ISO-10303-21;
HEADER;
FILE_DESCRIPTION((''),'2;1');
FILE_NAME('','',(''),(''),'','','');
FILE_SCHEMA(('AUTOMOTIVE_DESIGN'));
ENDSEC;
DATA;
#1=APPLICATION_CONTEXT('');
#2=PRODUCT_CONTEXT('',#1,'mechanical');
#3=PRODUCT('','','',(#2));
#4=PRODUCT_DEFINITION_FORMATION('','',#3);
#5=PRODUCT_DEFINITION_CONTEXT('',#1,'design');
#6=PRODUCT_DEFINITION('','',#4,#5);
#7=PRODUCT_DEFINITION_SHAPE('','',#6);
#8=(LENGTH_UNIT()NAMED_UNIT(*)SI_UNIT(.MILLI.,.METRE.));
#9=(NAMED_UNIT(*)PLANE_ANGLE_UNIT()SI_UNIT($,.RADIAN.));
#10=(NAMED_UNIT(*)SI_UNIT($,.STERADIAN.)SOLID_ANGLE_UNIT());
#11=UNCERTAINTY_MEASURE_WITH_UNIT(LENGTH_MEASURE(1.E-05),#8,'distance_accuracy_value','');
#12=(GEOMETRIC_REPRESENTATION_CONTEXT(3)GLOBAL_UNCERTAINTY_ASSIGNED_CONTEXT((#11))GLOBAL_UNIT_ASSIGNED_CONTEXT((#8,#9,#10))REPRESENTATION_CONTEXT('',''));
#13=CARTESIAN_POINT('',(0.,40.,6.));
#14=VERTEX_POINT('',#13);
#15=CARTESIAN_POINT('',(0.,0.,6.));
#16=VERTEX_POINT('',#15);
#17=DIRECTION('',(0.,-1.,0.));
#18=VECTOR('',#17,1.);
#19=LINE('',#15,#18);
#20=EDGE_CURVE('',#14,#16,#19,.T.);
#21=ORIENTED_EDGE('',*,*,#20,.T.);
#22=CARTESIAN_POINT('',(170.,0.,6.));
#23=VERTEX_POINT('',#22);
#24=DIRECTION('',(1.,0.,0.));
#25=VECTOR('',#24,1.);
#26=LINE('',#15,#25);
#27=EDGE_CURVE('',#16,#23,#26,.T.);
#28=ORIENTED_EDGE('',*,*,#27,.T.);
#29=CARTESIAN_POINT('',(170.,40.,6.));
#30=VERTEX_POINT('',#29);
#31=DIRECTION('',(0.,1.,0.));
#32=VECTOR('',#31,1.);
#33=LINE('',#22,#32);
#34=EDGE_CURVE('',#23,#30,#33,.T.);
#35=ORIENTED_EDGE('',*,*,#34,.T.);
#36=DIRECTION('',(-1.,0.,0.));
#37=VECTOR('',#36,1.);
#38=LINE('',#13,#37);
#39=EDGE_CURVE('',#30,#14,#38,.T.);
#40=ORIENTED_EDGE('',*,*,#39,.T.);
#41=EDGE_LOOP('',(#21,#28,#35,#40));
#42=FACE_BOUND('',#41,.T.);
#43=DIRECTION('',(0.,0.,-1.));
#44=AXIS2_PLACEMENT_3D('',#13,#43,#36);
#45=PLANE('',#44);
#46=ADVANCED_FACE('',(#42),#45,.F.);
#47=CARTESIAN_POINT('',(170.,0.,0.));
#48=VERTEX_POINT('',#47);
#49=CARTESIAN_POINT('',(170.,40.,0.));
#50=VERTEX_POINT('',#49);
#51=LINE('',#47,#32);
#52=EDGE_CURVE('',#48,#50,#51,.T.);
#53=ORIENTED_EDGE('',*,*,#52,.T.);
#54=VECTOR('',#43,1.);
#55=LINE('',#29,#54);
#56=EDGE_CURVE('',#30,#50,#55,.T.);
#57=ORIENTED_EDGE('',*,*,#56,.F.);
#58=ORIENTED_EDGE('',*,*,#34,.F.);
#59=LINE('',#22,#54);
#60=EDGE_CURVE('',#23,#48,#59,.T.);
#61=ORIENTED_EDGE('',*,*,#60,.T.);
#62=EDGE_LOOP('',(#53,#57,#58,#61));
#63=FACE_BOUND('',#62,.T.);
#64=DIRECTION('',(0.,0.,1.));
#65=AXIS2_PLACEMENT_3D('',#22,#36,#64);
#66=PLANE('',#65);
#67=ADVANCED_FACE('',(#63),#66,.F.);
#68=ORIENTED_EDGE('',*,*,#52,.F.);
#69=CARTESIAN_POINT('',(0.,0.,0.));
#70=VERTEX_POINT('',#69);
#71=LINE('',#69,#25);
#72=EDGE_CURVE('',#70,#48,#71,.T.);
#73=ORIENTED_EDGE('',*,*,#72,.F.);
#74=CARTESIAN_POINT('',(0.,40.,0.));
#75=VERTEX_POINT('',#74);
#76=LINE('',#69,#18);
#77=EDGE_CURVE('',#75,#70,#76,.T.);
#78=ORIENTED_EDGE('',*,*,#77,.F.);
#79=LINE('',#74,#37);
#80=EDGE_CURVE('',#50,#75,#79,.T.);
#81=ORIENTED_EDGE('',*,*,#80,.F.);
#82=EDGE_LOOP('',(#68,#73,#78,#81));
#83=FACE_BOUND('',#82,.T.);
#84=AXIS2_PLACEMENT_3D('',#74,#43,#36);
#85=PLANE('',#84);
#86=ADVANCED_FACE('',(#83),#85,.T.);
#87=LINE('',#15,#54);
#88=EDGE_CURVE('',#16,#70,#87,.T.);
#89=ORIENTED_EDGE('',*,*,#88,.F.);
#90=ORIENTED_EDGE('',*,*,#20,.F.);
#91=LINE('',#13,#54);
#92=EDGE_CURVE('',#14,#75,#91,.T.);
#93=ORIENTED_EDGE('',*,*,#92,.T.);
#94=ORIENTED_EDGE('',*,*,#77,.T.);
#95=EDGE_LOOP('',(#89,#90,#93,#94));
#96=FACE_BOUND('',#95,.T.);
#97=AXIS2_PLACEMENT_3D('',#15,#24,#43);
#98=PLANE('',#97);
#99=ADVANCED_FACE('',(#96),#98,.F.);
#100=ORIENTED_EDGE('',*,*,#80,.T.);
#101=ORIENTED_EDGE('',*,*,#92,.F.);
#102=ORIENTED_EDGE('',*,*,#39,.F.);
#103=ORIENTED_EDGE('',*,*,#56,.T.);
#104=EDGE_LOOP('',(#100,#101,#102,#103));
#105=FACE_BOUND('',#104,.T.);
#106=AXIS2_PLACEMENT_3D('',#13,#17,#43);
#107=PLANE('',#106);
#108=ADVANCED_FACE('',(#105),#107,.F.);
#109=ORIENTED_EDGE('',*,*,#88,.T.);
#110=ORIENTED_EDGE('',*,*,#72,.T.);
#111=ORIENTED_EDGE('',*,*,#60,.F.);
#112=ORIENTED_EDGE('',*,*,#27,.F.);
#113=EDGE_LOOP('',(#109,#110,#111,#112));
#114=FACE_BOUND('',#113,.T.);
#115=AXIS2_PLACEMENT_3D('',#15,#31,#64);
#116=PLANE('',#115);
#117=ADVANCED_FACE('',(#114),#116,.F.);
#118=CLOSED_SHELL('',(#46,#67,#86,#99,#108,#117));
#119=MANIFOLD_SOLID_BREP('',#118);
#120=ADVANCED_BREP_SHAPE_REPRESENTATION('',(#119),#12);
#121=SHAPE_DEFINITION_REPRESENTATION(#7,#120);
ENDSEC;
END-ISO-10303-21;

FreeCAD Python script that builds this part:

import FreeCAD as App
import Part
import Sketcher

V = App.Vector
Q = App.Units.Quantity

doc = App.newDocument("Part")
body = doc.addObject("PartDesign::Body", "Body")

# Sketch on XY plane
sketch1 = body.newObject("Sketcher::SketchObject", "Sketch")
sketch1.AttachmentSupport = (doc.getObject("XY_Plane"), [""])
sketch1.MapMode = "FlatFace"
sketch1.addGeometry([
    Part.LineSegment(V(0, 40, 0), V(0, 0, 0)),
    Part.LineSegment(V(0, 0, 0), V(170, 0, 0)),
    Part.LineSegment(V(170, 0, 0), V(170, 40, 0)),
    Part.LineSegment(V(170, 40, 0), V(0, 40, 0)),
], False)
sketch1.addConstraint([
    Sketcher.Constraint("Coincident", 0, 2, 1, 1),
    Sketcher.Constraint("Coincident", 1, 2, 2, 1),
    Sketcher.Constraint("Coincident", 2, 2, 3, 1),
    Sketcher.Constraint("Coincident", 3, 2, 0, 1),
    Sketcher.Constraint("Vertical", 0),
    Sketcher.Constraint("Horizontal", 1),
    Sketcher.Constraint("Vertical", 2),
    Sketcher.Constraint("Horizontal", 3),
    Sketcher.Constraint("Coincident", 0, 2, -1, 1),
    Sketcher.Constraint("DistanceX", 1, 1, 1, 2, Q("170 mm")),
    Sketcher.Constraint("DistanceY", 0, 2, 0, 1, Q("40 mm")),
])
pad1 = body.newObject("PartDesign::Pad", "Pad")
pad1.Profile = sketch1
pad1.Length = 6

doc.recompute()
